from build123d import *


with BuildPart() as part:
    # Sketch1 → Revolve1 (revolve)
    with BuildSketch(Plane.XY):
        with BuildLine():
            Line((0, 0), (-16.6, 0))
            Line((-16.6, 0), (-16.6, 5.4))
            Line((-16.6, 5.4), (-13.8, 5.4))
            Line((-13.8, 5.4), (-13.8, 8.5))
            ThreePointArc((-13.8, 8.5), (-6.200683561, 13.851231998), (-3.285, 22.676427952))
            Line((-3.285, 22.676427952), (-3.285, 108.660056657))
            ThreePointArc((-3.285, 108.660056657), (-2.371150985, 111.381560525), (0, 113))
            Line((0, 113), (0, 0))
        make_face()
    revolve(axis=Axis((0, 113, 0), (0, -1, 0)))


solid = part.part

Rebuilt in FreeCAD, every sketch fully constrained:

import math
import FreeCAD as App
import Part
import Sketcher

V = App.Vector
Q = App.Units.Quantity

doc = App.newDocument("Part")
body = doc.addObject("PartDesign::Body", "Body")

# Sketch on XY plane
sketch1 = body.newObject("Sketcher::SketchObject", "Sketch")
sketch1.AttachmentSupport = (doc.getObject("XY_Plane"), [""])
sketch1.MapMode = "FlatFace"
sketch1.addGeometry([
    Part.LineSegment(V(-16.6, 0, 0), V(0, 0, 0)),  # 0
    Part.LineSegment(V(0, 0, 0), V(0, 113, 0)),  # 1
    Part.ArcOfCircle(Part.Circle(V(1.2, 108.7, 0), V(0, 0, 1), 4.5), math.radians(106), math.radians(180)),  # 2
    Part.LineSegment(V(-3.3, 108.7, 0), V(-3.3, 22.7, 0)),  # 3
    Part.ArcOfCircle(Part.Circle(V(-18.1, 22.7, 0), V(0, 0, 1), 14.8), math.radians(-73), math.radians(0)),  # 4
    Part.LineSegment(V(-13.8, 8.5, 0), V(-13.8, 5.4, 0)),  # 5
    Part.LineSegment(V(-13.8, 5.4, 0), V(-16.6, 5.4, 0)),  # 6
    Part.LineSegment(V(-16.6, 5.4, 0), V(-16.6, 0, 0)),  # 7
], False)
sketch1.addConstraint([
    Sketcher.Constraint("Coincident", 0, 2, 1, 1),
    Sketcher.Constraint("Coincident", 1, 2, 2, 1),
    Sketcher.Constraint("Tangent", 2, 2, 3, 1),
    Sketcher.Constraint("Tangent", 3, 2, 4, 2),
    Sketcher.Constraint("Coincident", 4, 1, 5, 1),
    Sketcher.Constraint("Coincident", 5, 2, 6, 1),
    Sketcher.Constraint("Coincident", 6, 2, 7, 1),
    Sketcher.Constraint("Coincident", 7, 2, 0, 1),
    Sketcher.Constraint("Horizontal", 0),
    Sketcher.Constraint("Vertical", 1),
    Sketcher.Constraint("Vertical", 3),
    Sketcher.Constraint("Vertical", 5),
    Sketcher.Constraint("Horizontal", 6),
    Sketcher.Constraint("Vertical", 7),
    Sketcher.Constraint("Coincident", 0, 2, -1, 1),
    Sketcher.Constraint("DistanceY", 1, 1, 1, 2, Q("113 mm")),
    Sketcher.Constraint("DistanceX", 0, 1, 0, 2, Q("16.6 mm")),
    Sketcher.Constraint("DistanceX", 6, 2, 6, 1, Q("2.8 mm")),
    Sketcher.Constraint("DistanceY", 5, 2, 5, 1, Q("3.1 mm")),
    Sketcher.Constraint("DistanceY", 7, 2, 7, 1, Q("5.4 mm")),
    Sketcher.Constraint("Radius", 4, Q("14.813901 mm")),
    Sketcher.Constraint("DistanceX", 2, 2, -1, 1, Q("3.285 mm")),
    Sketcher.Constraint("Radius", 2, Q("4.509335 mm")),
])
revolution = body.newObject("PartDesign::Revolution", "Revolution")
revolution.Profile = sketch1
revolution.ReferenceAxis = (sketch1, ["V_Axis"])
revolution.Angle = 360

doc.recompute()
